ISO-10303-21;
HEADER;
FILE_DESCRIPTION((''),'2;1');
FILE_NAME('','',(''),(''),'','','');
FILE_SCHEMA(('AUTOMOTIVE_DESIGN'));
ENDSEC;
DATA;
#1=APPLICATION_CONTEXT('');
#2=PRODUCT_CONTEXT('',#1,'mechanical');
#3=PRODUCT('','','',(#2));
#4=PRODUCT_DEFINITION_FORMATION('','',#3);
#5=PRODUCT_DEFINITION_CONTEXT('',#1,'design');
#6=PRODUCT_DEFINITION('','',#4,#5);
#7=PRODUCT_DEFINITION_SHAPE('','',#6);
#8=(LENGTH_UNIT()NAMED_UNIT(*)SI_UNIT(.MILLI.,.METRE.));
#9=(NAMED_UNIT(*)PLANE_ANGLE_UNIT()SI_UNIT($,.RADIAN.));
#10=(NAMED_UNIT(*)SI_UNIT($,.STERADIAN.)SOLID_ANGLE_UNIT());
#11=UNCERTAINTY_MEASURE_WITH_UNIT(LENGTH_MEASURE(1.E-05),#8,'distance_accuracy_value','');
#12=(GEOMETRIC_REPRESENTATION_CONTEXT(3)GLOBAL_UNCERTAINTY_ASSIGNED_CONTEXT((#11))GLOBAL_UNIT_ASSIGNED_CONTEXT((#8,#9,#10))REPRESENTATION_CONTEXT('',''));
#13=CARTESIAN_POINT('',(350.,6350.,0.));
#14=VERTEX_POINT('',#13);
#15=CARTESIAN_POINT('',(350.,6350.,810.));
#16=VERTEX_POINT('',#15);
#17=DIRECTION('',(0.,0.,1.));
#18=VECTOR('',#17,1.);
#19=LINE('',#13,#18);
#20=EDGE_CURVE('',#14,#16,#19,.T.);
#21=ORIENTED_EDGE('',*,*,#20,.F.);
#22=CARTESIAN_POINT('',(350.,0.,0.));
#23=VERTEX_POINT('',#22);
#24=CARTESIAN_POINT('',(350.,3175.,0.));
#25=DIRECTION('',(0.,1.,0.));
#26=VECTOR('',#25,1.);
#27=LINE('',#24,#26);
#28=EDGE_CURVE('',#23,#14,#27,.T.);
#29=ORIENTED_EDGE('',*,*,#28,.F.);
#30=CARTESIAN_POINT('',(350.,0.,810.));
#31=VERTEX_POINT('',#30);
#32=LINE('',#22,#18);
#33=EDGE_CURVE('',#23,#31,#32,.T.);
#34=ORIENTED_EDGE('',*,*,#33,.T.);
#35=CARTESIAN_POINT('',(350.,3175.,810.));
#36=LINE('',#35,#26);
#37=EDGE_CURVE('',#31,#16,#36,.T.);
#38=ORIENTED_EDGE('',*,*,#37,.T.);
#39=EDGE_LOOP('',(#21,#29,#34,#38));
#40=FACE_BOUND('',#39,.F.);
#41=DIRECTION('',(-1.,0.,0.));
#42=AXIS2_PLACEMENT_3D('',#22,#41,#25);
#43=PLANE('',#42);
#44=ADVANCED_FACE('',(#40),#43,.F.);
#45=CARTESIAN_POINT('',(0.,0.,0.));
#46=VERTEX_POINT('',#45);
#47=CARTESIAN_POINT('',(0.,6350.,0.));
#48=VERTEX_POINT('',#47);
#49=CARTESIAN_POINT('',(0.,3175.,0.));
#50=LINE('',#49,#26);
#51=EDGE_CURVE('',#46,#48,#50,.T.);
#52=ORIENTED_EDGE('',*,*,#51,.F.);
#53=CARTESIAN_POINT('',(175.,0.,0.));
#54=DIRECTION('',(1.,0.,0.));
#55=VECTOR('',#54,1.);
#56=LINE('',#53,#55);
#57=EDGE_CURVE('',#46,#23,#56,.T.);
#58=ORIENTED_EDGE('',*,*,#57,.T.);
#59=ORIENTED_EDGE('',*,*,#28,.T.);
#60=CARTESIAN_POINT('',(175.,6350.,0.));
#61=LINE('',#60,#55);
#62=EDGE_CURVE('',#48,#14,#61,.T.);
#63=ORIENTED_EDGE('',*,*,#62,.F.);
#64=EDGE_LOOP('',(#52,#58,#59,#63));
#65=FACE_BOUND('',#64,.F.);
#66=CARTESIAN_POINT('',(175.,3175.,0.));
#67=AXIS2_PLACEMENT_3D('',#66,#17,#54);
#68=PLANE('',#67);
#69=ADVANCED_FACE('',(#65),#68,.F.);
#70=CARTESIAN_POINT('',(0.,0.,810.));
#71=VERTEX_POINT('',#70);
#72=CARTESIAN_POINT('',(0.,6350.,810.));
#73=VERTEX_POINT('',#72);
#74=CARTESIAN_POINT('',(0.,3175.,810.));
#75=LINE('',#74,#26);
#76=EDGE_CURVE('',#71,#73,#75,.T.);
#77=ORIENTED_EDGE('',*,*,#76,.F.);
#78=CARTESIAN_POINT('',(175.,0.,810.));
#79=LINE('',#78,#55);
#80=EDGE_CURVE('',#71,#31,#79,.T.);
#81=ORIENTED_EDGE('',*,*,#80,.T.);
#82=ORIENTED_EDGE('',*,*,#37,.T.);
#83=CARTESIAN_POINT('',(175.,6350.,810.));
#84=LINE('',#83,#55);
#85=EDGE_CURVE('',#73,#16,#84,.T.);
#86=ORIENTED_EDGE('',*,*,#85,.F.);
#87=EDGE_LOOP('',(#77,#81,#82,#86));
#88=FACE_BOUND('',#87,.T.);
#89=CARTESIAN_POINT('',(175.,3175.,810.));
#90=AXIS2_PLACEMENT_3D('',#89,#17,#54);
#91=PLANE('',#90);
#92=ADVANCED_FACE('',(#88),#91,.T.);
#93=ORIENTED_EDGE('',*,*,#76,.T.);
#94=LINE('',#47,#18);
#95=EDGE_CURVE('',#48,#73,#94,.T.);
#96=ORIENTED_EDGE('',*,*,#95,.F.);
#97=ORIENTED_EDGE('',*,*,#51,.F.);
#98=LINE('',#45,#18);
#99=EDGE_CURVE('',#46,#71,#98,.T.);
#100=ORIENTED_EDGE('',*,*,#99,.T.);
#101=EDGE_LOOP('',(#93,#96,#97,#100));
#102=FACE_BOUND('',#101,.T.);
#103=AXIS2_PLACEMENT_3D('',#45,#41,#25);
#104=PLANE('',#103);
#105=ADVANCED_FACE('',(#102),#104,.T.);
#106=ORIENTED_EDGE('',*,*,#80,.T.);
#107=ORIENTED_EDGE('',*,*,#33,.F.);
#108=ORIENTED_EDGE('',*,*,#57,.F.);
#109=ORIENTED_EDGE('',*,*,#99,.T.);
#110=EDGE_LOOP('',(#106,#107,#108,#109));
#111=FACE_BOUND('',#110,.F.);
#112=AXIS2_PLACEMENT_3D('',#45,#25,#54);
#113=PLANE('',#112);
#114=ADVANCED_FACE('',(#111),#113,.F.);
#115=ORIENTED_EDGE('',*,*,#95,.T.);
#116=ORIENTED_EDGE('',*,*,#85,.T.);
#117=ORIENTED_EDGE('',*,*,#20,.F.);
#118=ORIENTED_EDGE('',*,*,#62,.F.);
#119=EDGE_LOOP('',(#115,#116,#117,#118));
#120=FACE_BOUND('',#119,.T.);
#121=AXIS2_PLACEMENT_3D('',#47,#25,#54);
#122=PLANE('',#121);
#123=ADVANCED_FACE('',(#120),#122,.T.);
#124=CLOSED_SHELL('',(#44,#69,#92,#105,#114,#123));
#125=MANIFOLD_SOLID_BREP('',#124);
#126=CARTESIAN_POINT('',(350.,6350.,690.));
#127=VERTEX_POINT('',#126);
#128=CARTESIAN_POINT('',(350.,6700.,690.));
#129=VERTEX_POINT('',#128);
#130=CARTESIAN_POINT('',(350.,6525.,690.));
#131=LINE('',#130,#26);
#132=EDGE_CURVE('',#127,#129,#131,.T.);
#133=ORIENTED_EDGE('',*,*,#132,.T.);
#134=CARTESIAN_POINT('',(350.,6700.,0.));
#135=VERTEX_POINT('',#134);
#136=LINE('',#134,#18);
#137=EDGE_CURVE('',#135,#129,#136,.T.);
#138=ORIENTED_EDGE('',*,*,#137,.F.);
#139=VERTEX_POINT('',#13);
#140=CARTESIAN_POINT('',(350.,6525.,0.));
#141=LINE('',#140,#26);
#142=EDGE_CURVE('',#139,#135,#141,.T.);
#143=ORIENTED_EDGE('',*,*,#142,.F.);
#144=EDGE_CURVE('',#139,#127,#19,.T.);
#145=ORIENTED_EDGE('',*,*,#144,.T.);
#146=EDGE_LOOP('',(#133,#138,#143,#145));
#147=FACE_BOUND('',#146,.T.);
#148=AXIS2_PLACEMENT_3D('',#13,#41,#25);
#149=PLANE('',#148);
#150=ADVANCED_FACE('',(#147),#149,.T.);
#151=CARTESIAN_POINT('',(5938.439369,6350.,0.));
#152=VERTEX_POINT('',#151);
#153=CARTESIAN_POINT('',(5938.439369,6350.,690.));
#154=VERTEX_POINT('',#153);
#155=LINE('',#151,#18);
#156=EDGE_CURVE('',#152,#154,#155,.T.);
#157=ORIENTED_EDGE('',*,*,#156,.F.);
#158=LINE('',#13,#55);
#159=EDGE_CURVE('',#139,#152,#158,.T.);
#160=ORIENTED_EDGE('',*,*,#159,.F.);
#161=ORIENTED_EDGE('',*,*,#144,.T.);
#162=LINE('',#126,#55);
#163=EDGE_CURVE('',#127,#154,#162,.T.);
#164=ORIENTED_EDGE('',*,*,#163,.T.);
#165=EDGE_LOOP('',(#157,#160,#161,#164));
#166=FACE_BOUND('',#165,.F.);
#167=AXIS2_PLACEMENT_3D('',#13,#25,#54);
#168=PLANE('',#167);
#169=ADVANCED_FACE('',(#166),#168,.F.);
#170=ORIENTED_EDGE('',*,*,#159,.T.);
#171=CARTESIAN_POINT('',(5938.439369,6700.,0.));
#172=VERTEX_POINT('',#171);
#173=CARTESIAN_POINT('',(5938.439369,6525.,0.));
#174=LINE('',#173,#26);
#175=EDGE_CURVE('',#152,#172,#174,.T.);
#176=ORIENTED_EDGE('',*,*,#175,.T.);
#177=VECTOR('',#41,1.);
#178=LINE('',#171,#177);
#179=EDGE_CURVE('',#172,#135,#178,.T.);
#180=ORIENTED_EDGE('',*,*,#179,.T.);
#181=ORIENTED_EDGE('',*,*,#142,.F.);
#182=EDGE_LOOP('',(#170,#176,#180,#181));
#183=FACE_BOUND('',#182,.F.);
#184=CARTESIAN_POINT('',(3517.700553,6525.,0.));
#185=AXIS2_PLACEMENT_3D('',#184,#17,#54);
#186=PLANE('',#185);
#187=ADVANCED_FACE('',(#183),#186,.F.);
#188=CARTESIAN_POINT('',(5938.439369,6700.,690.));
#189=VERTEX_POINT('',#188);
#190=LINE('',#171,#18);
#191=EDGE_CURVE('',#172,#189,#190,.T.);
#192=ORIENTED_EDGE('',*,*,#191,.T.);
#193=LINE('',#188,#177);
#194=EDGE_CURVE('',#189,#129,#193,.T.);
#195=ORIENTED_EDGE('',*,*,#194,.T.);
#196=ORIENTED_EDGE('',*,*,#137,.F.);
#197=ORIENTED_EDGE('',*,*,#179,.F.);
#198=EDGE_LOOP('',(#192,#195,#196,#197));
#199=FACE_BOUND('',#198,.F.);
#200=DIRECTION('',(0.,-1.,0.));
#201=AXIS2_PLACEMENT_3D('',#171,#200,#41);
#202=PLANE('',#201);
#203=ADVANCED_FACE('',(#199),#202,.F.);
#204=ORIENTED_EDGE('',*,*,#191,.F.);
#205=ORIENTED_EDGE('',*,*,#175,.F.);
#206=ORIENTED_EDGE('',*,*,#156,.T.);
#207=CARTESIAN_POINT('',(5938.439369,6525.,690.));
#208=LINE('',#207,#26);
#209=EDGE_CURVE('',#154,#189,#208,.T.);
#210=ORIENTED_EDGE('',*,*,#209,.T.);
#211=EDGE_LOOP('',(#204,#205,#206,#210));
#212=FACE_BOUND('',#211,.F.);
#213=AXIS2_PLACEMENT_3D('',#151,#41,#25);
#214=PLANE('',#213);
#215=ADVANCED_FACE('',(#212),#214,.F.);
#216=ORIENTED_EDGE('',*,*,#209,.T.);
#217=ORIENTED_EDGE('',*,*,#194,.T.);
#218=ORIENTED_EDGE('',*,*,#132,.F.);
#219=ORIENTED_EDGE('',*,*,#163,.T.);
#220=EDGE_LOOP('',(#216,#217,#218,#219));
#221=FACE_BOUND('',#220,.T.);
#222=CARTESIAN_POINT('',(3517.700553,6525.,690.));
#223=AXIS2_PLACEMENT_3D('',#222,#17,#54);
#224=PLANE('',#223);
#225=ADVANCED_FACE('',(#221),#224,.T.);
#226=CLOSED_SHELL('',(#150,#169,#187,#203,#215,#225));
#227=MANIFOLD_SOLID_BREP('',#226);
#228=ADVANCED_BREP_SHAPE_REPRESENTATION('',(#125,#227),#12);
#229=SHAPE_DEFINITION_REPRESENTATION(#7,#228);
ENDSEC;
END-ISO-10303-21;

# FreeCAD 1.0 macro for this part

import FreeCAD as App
import Part
import Sketcher

V = App.Vector


def add_polygon(sketch, points):
    """Adds a closed chain of lines whose ends are joined by coincident constraints."""
    first, n = sketch.GeometryCount, len(points)
    for a, b in zip(points, points[1:] + points[:1]):
        sketch.addGeometry(Part.LineSegment(App.Vector(*a, 0), App.Vector(*b, 0)), False)
    for i in range(n):
        sketch.addConstraint(Sketcher.Constraint("Coincident", first + i, 2, first + (i + 1) % n, 1))

doc = App.newDocument("Part")
body = doc.addObject("PartDesign::Body", "Body")

# Sketch on XY plane
sketch1 = body.newObject("Sketcher::SketchObject", "Sketch")
sketch1.AttachmentSupport = (doc.getObject("XY_Plane"), [""])
sketch1.MapMode = "FlatFace"
add_polygon(sketch1, [(0, 6350), (0, 0), (350, 0), (350, 6350)])  # lines 0-3
sketch1.addConstraint([
    Sketcher.Constraint("Vertical", 0),
    Sketcher.Constraint("Horizontal", 1),
    Sketcher.Constraint("Vertical", 2),
    Sketcher.Constraint("Horizontal", 3),
    Sketcher.Constraint("Coincident", 0, 2, -1, 1),
    Sketcher.Constraint("DistanceX", 1, 1, 1, 2, 350.0),
    Sketcher.Constraint("DistanceY", 0, 2, 0, 1, 6350.0),
])
pad1 = body.newObject("PartDesign::Pad", "Pad")
pad1.Profile = sketch1
pad1.Length = 810
body2 = doc.addObject("PartDesign::Body", "Body001")

# Sketch on XY plane
sketch2 = body2.newObject("Sketcher::SketchObject", "Sketch001")
sketch2.AttachmentSupport = (doc.getObject("XY_Plane001"), [""])
sketch2.MapMode = "FlatFace"
add_polygon(sketch2, [(350, 6700), (350, 6350), (5938, 6350), (5938, 6700)])  # lines 0-3
sketch2.addConstraint([
    Sketcher.Constraint("Vertical", 0),
    Sketcher.Constraint("Horizontal", 1),
    Sketcher.Constraint("Vertical", 2),
    Sketcher.Constraint("Horizontal", 3),
    Sketcher.Constraint("DistanceY", 0, 2, 0, 1, 350.0),
    Sketcher.Constraint("DistanceX", -1, 1, 0, 2, 350.0),
    Sketcher.Constraint("DistanceY", -1, 1, 0, 2, 6350.0),
    Sketcher.Constraint("DistanceX", 1, 1, 1, 2, 5588.439369),
])
pad2 = body2.newObject("PartDesign::Pad", "Pad001")
pad2.Profile = sketch2
pad2.Length = 690

doc.recompute()
